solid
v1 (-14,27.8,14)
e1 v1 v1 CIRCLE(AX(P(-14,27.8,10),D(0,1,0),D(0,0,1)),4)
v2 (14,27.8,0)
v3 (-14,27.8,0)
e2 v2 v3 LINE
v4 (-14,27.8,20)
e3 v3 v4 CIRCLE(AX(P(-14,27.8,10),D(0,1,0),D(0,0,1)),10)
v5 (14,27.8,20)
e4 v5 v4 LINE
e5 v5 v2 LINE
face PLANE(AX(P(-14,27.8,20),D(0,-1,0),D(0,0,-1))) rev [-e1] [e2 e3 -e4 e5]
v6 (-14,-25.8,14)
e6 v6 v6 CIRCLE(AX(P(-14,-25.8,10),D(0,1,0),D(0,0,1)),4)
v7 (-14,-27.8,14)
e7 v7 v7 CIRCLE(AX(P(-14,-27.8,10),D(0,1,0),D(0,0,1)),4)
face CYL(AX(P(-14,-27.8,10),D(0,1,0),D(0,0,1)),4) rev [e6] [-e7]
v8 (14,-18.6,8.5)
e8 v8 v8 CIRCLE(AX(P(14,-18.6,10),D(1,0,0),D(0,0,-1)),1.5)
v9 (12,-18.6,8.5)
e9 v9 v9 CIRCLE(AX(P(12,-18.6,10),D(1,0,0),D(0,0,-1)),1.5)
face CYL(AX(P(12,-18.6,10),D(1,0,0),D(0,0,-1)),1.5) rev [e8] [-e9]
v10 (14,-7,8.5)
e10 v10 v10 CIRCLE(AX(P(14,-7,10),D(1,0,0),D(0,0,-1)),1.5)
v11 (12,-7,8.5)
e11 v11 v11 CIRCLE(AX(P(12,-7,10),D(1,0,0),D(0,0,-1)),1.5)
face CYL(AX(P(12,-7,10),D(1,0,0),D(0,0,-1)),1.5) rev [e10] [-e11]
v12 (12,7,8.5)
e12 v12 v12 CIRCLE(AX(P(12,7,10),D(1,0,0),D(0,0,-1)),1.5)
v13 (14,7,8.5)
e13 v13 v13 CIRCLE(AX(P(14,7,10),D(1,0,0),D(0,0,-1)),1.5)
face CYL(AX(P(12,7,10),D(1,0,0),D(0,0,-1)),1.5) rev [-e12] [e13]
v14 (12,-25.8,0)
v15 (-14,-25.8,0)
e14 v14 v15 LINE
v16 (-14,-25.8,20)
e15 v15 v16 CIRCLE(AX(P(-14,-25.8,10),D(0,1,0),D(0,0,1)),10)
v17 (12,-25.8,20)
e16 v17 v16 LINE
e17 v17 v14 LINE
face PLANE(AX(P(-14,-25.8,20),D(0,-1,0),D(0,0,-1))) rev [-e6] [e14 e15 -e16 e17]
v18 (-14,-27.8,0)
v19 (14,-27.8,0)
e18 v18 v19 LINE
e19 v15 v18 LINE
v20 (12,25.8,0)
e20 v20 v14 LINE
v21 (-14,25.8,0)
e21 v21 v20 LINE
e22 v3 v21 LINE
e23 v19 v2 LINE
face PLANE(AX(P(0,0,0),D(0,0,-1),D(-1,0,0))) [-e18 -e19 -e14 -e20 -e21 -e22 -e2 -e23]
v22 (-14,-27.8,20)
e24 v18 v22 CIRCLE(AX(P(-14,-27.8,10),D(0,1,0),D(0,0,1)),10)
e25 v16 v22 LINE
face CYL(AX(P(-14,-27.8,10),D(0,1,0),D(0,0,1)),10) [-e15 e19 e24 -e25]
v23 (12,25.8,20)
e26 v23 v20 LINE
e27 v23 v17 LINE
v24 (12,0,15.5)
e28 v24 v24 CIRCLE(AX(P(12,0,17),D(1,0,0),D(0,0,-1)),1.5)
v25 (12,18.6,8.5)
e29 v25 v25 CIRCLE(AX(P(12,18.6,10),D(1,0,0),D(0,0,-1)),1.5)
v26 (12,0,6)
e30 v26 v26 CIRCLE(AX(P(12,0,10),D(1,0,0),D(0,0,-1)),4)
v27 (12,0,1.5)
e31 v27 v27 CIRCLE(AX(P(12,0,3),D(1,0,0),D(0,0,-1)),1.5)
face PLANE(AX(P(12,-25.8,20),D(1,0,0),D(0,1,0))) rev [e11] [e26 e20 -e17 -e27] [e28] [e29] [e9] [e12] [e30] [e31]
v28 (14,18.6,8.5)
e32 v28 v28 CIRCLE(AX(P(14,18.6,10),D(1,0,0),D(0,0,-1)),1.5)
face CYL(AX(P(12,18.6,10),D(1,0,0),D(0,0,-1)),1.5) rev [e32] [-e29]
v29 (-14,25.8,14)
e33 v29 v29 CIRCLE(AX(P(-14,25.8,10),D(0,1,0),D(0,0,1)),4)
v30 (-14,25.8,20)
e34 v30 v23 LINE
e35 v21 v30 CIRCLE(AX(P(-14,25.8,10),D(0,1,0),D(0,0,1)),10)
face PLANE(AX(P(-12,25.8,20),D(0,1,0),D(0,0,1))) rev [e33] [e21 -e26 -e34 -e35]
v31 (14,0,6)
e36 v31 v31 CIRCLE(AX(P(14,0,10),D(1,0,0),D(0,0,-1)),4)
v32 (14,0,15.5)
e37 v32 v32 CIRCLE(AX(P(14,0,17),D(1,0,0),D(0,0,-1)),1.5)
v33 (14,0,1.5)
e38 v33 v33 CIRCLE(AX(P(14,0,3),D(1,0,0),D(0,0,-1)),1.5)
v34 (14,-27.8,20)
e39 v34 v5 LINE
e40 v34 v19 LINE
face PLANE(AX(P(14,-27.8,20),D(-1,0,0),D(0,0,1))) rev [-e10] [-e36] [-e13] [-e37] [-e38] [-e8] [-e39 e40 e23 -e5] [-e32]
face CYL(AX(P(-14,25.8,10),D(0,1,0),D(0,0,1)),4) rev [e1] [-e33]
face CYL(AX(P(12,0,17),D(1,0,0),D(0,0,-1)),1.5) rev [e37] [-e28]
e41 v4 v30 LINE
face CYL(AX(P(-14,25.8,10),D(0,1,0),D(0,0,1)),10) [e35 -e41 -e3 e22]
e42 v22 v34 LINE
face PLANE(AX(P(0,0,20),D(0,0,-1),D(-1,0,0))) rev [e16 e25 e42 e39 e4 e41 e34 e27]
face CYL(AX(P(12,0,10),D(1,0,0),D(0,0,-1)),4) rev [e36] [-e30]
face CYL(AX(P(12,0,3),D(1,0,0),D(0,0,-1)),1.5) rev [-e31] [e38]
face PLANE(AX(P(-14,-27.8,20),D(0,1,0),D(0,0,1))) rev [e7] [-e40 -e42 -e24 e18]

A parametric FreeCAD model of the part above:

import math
import FreeCAD as App
import Part
import Sketcher

doc = App.newDocument("Part")
body = doc.addObject("PartDesign::Body", "Body")

# Sketch on XY plane
sketch1 = body.newObject("Sketcher::SketchObject", "Sketch")
sketch1.AttachmentSupport = (doc.getObject("XY_Plane"), [""])
sketch1.MapMode = "FlatFace"
sketch1.addGeometry(Part.LineSegment(App.Vector(12, 25.8, 0), App.Vector(12, -25.8, 0)), False)
sketch1.addGeometry(Part.LineSegment(App.Vector(12, -25.8, 0), App.Vector(-14, -25.8, 0)), False)
sketch1.addGeometry(Part.LineSegment(App.Vector(-14, -25.8, 0), App.Vector(-14, -27.8, 0)), False)
sketch1.addGeometry(Part.LineSegment(App.Vector(-14, -27.8, 0), App.Vector(14, -27.8, 0)), False)
sketch1.addGeometry(Part.LineSegment(App.Vector(14, -27.8, 0), App.Vector(14, 27.8, 0)), False)
sketch1.addGeometry(Part.LineSegment(App.Vector(14, 27.8, 0), App.Vector(-14, 27.8, 0)), False)
sketch1.addGeometry(Part.LineSegment(App.Vector(-14, 27.8, 0), App.Vector(-14, 25.8, 0)), False)
sketch1.addGeometry(Part.LineSegment(App.Vector(-14, 25.8, 0), App.Vector(12, 25.8, 0)), False)
sketch1.addConstraint(Sketcher.Constraint("Coincident", 0, 2, 1, 1))
sketch1.addConstraint(Sketcher.Constraint("Coincident", 1, 2, 2, 1))
sketch1.addConstraint(Sketcher.Constraint("Coincident", 2, 2, 3, 1))
sketch1.addConstraint(Sketcher.Constraint("Coincident", 3, 2, 4, 1))
sketch1.addConstraint(Sketcher.Constraint("Coincident", 4, 2, 5, 1))
sketch1.addConstraint(Sketcher.Constraint("Coincident", 5, 2, 6, 1))
sketch1.addConstraint(Sketcher.Constraint("Coincident", 6, 2, 7, 1))
sketch1.addConstraint(Sketcher.Constraint("Coincident", 7, 2, 0, 1))
sketch1.addConstraint(Sketcher.Constraint("Vertical", 0))
sketch1.addConstraint(Sketcher.Constraint("Horizontal", 1))
sketch1.addConstraint(Sketcher.Constraint("Vertical", 2))
sketch1.addConstraint(Sketcher.Constraint("Horizontal", 3))
sketch1.addConstraint(Sketcher.Constraint("Vertical", 4))
sketch1.addConstraint(Sketcher.Constraint("Horizontal", 5))
sketch1.addConstraint(Sketcher.Constraint("Vertical", 6))
sketch1.addConstraint(Sketcher.Constraint("Horizontal", 7))
sketch1.addConstraint(Sketcher.Constraint("Symmetric", 2, 2, 4, 2, -1, 1))
sketch1.addConstraint(Sketcher.Constraint("Symmetric", 1, 2, 6, 2, -1))
sketch1.addConstraint(Sketcher.Constraint("DistanceX", 1, 2, 1, 1, 26.0))
sketch1.addConstraint(Sketcher.Constraint("DistanceX", 3, 1, 3, 2, 28.0))
sketch1.addConstraint(Sketcher.Constraint("DistanceY", 2, 2, 2, 1, 2.0))
sketch1.addConstraint(Sketcher.Constraint("DistanceY", 0, 2, 0, 1, 51.6))
pad1 = body.newObject("PartDesign::Pad", "Pad")
pad1.Profile = sketch1
pad1.Length = 20

# Sketch on XZ plane
sketch2 = body.newObject("Sketcher::SketchObject", "Sketch001")
sketch2.AttachmentSupport = (doc.getObject("XZ_Plane"), [""])
sketch2.MapMode = "FlatFace"
sketch2.AttachmentOffset = App.Placement(App.Vector(0, 0, -27.8), App.Rotation())
sketch2.addGeometry(Part.LineSegment(App.Vector(-14, 20, 0), App.Vector(-14, 0, 0)), False)
sketch2.addGeometry(Part.ArcOfCircle(Part.Circle(App.Vector(-14, 10, 0), App.Vector(0, 0, 1), 10), math.radians(90), math.radians(270)), False)
sketch2.addConstraint(Sketcher.Constraint("Coincident", 0, 1, 1, 1))
sketch2.addConstraint(Sketcher.Constraint("Coincident", 1, 2, 0, 2))
sketch2.addConstraint(Sketcher.Constraint("Vertical", 0))
sketch2.addConstraint(Sketcher.Constraint("PointOnObject", 1, 2, -1))
sketch2.addConstraint(Sketcher.Constraint("Vertical", 1, 3, 0, 1))
sketch2.addConstraint(Sketcher.Constraint("Radius", 1, 10.0))
sketch2.addConstraint(Sketcher.Constraint("DistanceX", 1, 3, -1, 1, 14.0))
pad2 = body.newObject("PartDesign::Pad", "Pad001")
pad2.Profile = sketch2
pad2.Length = 2

# Sketch on XZ plane
sketch3 = body.newObject("Sketcher::SketchObject", "Sketch002")
sketch3.AttachmentSupport = (doc.getObject("XZ_Plane"), [""])
sketch3.MapMode = "FlatFace"
sketch3.AttachmentOffset = App.Placement(App.Vector(0, 0, 25.8), App.Rotation())
sketch3.addGeometry(Part.LineSegment(App.Vector(-14, 20, 0), App.Vector(-14, 0, 0)), False)
sketch3.addGeometry(Part.ArcOfCircle(Part.Circle(App.Vector(-14, 10, 0), App.Vector(0, 0, 1), 10), math.radians(90), math.radians(270)), False)
sketch3.addConstraint(Sketcher.Constraint("Coincident", 0, 1, 1, 1))
sketch3.addConstraint(Sketcher.Constraint("Coincident", 1, 2, 0, 2))
sketch3.addConstraint(Sketcher.Constraint("Vertical", 0))
sketch3.addConstraint(Sketcher.Constraint("PointOnObject", 1, 2, -1))
sketch3.addConstraint(Sketcher.Constraint("Vertical", 1, 3, 0, 1))
sketch3.addConstraint(Sketcher.Constraint("Radius", 1, 10.0))
sketch3.addConstraint(Sketcher.Constraint("DistanceX", 1, 3, -1, 1, 14.0))
pad3 = body.newObject("PartDesign::Pad", "Pad002")
pad3.Profile = sketch3
pad3.Length = 2

# Sketch on XZ plane
sketch4 = body.newObject("Sketcher::SketchObject", "Sketch003")
sketch4.AttachmentSupport = (doc.getObject("XZ_Plane"), [""])
sketch4.MapMode = "FlatFace"
sketch4.AttachmentOffset = App.Placement(App.Vector(0, 0, -27.8), App.Rotation())
sketch4.addGeometry(Part.Circle(App.Vector(-14, 10, 0), App.Vector(0, 0, 1), 4), False)
sketch4.addConstraint(Sketcher.Constraint("Diameter", 0, 8.0))
sketch4.addConstraint(Sketcher.Constraint("DistanceX", 0, 3, -1, 1, 14.0))
sketch4.addConstraint(Sketcher.Constraint("DistanceY", -1, 1, 0, 3, 10.0))
pocket1 = body.newObject("PartDesign::Pocket", "Pocket")
pocket1.Profile = sketch4
pocket1.Length = 2
pocket1.Reversed = True

# Sketch on XZ plane
sketch5 = body.newObject("Sketcher::SketchObject", "Sketch004")
sketch5.AttachmentSupport = (doc.getObject("XZ_Plane"), [""])
sketch5.MapMode = "FlatFace"
sketch5.AttachmentOffset = App.Placement(App.Vector(0, 0, 25.8), App.Rotation())
sketch5.addGeometry(Part.Circle(App.Vector(-14, 10, 0), App.Vector(0, 0, 1), 4), False)
sketch5.addConstraint(Sketcher.Constraint("Diameter", 0, 8.0))
sketch5.addConstraint(Sketcher.Constraint("DistanceX", 0, 3, -1, 1, 14.0))
sketch5.addConstraint(Sketcher.Constraint("DistanceY", -1, 1, 0, 3, 10.0))
pocket2 = body.newObject("PartDesign::Pocket", "Pocket001")
pocket2.Profile = sketch5
pocket2.Length = 2
pocket2.Reversed = True

# Sketch on YZ plane
sketch6 = body.newObject("Sketcher::SketchObject", "Sketch005")
sketch6.AttachmentSupport = (doc.getObject("YZ_Plane"), [""])
sketch6.MapMode = "FlatFace"
sketch6.AttachmentOffset = App.Placement(App.Vector(0, 0, 14), App.Rotation())
sketch6.addGeometry(Part.ArcOfCircle(Part.Circle(App.Vector(0, 10, 0), App.Vector(0, 0, 1), 4), math.radians(-90), math.radians(20)), False)
sketch6.addGeometry(Part.ArcOfCircle(Part.Circle(App.Vector(0, 10, 0), App.Vector(0, 0, 1), 4), math.radians(20), math.radians(200)), False)
sketch6.addGeometry(Part.ArcOfCircle(Part.Circle(App.Vector(0, 10, 0), App.Vector(0, 0, 1), 4), math.radians(-160), math.radians(-90)), False)
sketch6.addConstraint(Sketcher.Constraint("Tangent", 0, 2, 1, 1))
sketch6.addConstraint(Sketcher.Constraint("Tangent", 1, 2, 2, 1))
sketch6.addConstraint(Sketcher.Constraint("Tangent", 2, 2, 0, 1))
sketch6.addConstraint(Sketcher.Constraint("PointOnObject", 0, 3, -2))
sketch6.addConstraint(Sketcher.Constraint("PointOnObject", 2, 2, -2))
sketch6.addConstraint(Sketcher.Constraint("Radius", 0, 4.0))
sketch6.addConstraint(Sketcher.Constraint("DistanceY", -1, 1, 0, 3, 10.0))
sketch6.addConstraint(Sketcher.Constraint("DistanceY", -1, 1, 0, 2, 11.353919))
sketch6.addConstraint(Sketcher.Constraint("DistanceY", -1, 1, 1, 2, 8.646081))
pocket3 = body.newObject("PartDesign::Pocket", "Pocket002")
pocket3.Profile = sketch6
pocket3.Length = 2

# Sketch on YZ plane
sketch7 = body.newObject("Sketcher::SketchObject", "Sketch006")
sketch7.AttachmentSupport = (doc.getObject("YZ_Plane"), [""])
sketch7.MapMode = "FlatFace"
sketch7.AttachmentOffset = App.Placement(App.Vector(0, 0, 14), App.Rotation())
sketch7.addGeometry(Part.Circle(App.Vector(7, 10, 0), App.Vector(0, 0, 1), 1.5), False)
sketch7.addGeometry(Part.Circle(App.Vector(0, 3, 0), App.Vector(0, 0, 1), 1.5), False)
sketch7.addGeometry(Part.Circle(App.Vector(-7, 10, 0), App.Vector(0, 0, 1), 1.5), False)
sketch7.addGeometry(Part.Circle(App.Vector(0, 17, 0), App.Vector(0, 0, 1), 1.5), False)
sketch7.addConstraint(Sketcher.Constraint("Equal", 0, 1))
sketch7.addConstraint(Sketcher.Constraint("Equal", 1, 2))
sketch7.addConstraint(Sketcher.Constraint("Equal", 2, 3))
sketch7.addConstraint(Sketcher.Constraint("Symmetric", 0, 3, 2, 3, -2))
sketch7.addConstraint(Sketcher.Constraint("PointOnObject", 1, 3, -2))
sketch7.addConstraint(Sketcher.Constraint("PointOnObject", 3, 3, -2))
sketch7.addConstraint(Sketcher.Constraint("Diameter", 0, 3.0))
sketch7.addConstraint(Sketcher.Constraint("DistanceX", -1, 1, 0, 3, 7.0))
sketch7.addConstraint(Sketcher.Constraint("DistanceY", -1, 1, 0, 3, 10.0))
sketch7.addConstraint(Sketcher.Constraint("DistanceY", -1, 1, 1, 3, 3.0))
sketch7.addConstraint(Sketcher.Constraint("DistanceY", -1, 1, 3, 3, 17.0))
pocket4 = body.newObject("PartDesign::Pocket", "Pocket003")
pocket4.Profile = sketch7
pocket4.Length = 2

# Sketch on YZ plane
sketch8 = body.newObject("Sketcher::SketchObject", "Sketch007")
sketch8.AttachmentSupport = (doc.getObject("YZ_Plane"), [""])
sketch8.MapMode = "FlatFace"
sketch8.AttachmentOffset = App.Placement(App.Vector(0, 0, 14), App.Rotation())
sketch8.addGeometry(Part.Circle(App.Vector(18.6, 10, 0), App.Vector(0, 0, 1), 1.5), False)
sketch8.addGeometry(Part.Circle(App.Vector(-18.6, 10, 0), App.Vector(0, 0, 1), 1.5), False)
sketch8.addConstraint(Sketcher.Constraint("Equal", 0, 1))
sketch8.addConstraint(Sketcher.Constraint("Symmetric", 0, 3, 1, 3, -2))
sketch8.addConstraint(Sketcher.Constraint("Diameter", 0, 3.0))
sketch8.addConstraint(Sketcher.Constraint("DistanceY", -1, 1, 0, 3, 10.0))
sketch8.addConstraint(Sketcher.Constraint("DistanceX", -1, 1, 0, 3, 18.6))
pocket5 = body.newObject("PartDesign::Pocket", "Pocket004")
pocket5.Profile = sketch8
pocket5.Length = 2

doc.recompute()
